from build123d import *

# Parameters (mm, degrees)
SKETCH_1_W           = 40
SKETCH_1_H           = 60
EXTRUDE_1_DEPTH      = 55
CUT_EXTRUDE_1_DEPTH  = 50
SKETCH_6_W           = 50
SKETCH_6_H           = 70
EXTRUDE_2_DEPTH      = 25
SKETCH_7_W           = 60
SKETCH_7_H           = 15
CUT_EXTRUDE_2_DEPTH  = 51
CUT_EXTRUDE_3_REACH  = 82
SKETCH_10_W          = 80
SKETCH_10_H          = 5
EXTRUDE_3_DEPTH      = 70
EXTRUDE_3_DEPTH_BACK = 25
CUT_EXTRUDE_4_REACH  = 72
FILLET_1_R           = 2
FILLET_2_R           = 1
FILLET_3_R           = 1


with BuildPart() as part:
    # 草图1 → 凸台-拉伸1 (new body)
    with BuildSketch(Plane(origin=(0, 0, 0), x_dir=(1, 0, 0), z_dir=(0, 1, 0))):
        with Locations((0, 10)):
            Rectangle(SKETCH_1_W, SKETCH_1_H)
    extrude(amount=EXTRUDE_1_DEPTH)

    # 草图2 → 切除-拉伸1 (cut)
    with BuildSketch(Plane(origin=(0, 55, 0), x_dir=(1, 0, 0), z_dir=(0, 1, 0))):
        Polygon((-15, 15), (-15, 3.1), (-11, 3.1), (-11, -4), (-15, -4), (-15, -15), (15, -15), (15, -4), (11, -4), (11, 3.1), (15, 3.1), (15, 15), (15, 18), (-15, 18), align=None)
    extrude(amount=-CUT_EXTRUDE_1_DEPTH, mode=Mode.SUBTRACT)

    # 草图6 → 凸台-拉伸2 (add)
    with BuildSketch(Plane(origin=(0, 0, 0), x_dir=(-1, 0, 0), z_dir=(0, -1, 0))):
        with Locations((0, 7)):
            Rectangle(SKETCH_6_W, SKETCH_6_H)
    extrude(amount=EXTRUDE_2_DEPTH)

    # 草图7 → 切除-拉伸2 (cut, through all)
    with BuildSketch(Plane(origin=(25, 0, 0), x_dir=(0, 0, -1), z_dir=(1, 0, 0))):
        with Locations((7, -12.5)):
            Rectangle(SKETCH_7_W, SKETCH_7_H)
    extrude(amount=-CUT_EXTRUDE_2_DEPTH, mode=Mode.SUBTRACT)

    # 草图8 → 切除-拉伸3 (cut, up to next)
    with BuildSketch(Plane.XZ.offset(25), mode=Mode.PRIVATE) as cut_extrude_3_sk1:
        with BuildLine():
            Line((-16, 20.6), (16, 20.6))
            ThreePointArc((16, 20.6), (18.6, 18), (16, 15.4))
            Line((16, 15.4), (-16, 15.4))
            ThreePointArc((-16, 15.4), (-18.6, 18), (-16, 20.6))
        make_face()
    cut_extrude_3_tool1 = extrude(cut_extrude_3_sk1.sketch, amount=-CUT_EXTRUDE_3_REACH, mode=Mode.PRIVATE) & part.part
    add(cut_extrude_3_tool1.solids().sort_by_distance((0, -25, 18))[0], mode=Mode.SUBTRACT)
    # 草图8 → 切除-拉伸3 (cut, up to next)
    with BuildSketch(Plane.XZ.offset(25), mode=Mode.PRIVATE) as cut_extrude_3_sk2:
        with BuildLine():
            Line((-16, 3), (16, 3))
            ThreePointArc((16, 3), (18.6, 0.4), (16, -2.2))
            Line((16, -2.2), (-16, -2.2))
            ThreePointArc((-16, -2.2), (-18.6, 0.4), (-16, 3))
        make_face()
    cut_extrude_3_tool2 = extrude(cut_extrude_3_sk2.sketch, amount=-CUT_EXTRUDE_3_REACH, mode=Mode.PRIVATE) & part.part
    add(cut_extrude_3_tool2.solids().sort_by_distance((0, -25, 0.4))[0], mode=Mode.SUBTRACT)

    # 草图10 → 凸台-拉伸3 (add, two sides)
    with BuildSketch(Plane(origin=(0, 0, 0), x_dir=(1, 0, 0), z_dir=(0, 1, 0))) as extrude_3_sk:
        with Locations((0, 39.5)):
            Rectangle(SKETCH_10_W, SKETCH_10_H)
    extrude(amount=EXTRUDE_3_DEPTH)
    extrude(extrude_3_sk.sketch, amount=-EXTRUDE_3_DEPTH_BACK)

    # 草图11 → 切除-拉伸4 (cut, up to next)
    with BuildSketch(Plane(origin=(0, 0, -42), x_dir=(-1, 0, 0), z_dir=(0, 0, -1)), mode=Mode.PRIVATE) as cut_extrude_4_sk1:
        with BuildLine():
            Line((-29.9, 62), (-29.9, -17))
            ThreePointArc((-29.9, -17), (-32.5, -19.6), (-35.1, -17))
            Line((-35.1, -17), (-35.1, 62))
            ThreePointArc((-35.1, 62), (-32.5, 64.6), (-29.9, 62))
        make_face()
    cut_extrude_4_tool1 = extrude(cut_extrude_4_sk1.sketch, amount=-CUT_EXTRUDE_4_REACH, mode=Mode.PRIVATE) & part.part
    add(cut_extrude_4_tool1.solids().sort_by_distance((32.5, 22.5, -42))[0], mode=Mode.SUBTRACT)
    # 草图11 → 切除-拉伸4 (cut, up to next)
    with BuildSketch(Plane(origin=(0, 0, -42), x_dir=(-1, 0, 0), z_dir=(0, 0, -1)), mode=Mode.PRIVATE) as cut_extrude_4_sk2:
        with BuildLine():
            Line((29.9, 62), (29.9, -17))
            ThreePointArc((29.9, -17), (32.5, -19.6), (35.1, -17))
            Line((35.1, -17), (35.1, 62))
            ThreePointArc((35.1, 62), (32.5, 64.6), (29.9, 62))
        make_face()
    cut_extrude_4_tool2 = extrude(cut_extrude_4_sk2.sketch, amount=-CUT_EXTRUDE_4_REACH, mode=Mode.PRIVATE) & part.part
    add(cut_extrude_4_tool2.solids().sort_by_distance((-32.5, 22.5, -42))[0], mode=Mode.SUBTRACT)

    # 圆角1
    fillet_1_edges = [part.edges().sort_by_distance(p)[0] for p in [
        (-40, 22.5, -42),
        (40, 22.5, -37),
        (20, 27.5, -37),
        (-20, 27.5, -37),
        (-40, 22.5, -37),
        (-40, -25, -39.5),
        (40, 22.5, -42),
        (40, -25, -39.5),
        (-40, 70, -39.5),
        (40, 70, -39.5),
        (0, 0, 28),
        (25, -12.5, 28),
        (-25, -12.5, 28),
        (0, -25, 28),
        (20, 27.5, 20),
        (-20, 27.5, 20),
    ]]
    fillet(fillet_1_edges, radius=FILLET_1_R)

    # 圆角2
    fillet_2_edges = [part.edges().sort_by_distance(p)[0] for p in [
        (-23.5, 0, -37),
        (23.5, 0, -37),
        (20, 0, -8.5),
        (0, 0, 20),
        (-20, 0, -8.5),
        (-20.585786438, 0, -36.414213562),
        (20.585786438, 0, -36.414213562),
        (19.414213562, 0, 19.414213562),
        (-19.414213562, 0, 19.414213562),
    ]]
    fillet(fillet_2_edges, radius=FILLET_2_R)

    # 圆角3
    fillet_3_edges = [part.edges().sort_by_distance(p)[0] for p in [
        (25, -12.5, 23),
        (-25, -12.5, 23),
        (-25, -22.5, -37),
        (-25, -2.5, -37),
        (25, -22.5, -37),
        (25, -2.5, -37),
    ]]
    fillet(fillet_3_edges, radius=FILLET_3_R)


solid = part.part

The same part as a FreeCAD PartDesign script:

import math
import FreeCAD as App
import Part
import Sketcher


def edges_at(feature, points):
    """Names of the edges that pass closest to the given points."""
    edges = feature.Shape.Edges
    near = lambda p: min(range(len(edges)), key=lambda i: edges[i].distToShape(Part.Vertex(*p))[0])
    return sorted({f"Edge{near(p) + 1}" for p in points})


def add_polygon(sketch, points):
    """Adds a closed chain of lines whose ends are joined by coincident constraints."""
    first, n = sketch.GeometryCount, len(points)
    for a, b in zip(points, points[1:] + points[:1]):
        sketch.addGeometry(Part.LineSegment(App.Vector(*a, 0), App.Vector(*b, 0)), False)
    for i in range(n):
        sketch.addConstraint(Sketcher.Constraint("Coincident", first + i, 2, first + (i + 1) % n, 1))

doc = App.newDocument("Part")
body = doc.addObject("PartDesign::Body", "Body")

# Sketch on XZ plane
sketch1 = body.newObject("Sketcher::SketchObject", "Sketch")
sketch1.AttachmentSupport = (doc.getObject("XZ_Plane"), [""])
sketch1.MapMode = "FlatFace"
add_polygon(sketch1, [(-20, -40), (-20, 20), (20, 20), (20, -40)])  # lines 0-3
sketch1.addConstraint([
    Sketcher.Constraint("Vertical", 0),
    Sketcher.Constraint("Horizontal", 1),
    Sketcher.Constraint("Vertical", 2),
    Sketcher.Constraint("Horizontal", 3),
    Sketcher.Constraint("DistanceX", 1, 1, 1, 2, 40.0),
    Sketcher.Constraint("DistanceY", 0, 1, 0, 2, 60.0),
    Sketcher.Constraint("DistanceX", 0, 2, -1, 1, 20.0),
    Sketcher.Constraint("DistanceY", -1, 1, 0, 2, 20.0),
])
pad1 = body.newObject("PartDesign::Pad", "Pad")
pad1.Profile = sketch1
pad1.Length = 55
pad1.Reversed = True

# Sketch on XZ plane
sketch2 = body.newObject("Sketcher::SketchObject", "Sketch001")
sketch2.AttachmentSupport = (doc.getObject("XZ_Plane"), [""])
sketch2.MapMode = "FlatFace"
sketch2.AttachmentOffset = App.Placement(App.Vector(0, 0, -55), App.Rotation())
add_polygon(sketch2, [(-15, -3.1), (-11, -3.1), (-11, 4), (-15, 4), (-15, 15), (15, 15), (15, 4), (11, 4), (11, -3.1), (15, -3.1), (15, -18), (-15, -18)])  # lines 0-11
sketch2.addConstraint([
    Sketcher.Constraint("Horizontal", 0),
    Sketcher.Constraint("Vertical", 1),
    Sketcher.Constraint("Horizontal", 2),
    Sketcher.Constraint("Vertical", 3),
    Sketcher.Constraint("Horizontal", 4),
    Sketcher.Constraint("Vertical", 5),
    Sketcher.Constraint("Horizontal", 6),
    Sketcher.Constraint("Vertical", 7),
    Sketcher.Constraint("Horizontal", 8),
    Sketcher.Constraint("Vertical", 9),
    Sketcher.Constraint("Horizontal", 10),
    Sketcher.Constraint("Vertical", 11),
    Sketcher.Constraint("Symmetric", 2, 2, 5, 2, -2),
    Sketcher.Constraint("Symmetric", 0, 2, 7, 2, -2),
    Sketcher.Constraint("Vertical", 5, 2, 8, 2),
    Sketcher.Constraint("Vertical", 3, 2, 10, 2),
    Sketcher.Constraint("DistanceX", 0, 1, 0, 2, 4.0),
    Sketcher.Constraint("DistanceX", 4, 1, 4, 2, 30.0),
    Sketcher.Constraint("DistanceY", 3, 1, 3, 2, 11.0),
    Sketcher.Constraint("DistanceY", 1, 1, 1, 2, 7.1),
    Sketcher.Constraint("DistanceY", 9, 2, 9, 1, 14.9),
    Sketcher.Constraint("DistanceY", -1, 1, 1, 2, 4.0),
])
pocket1 = body.newObject("PartDesign::Pocket", "Pocket")
pocket1.Profile = sketch2
pocket1.Length = 50
pocket1.Reversed = True

# Sketch on XZ plane
sketch3 = body.newObject("Sketcher::SketchObject", "Sketch002")
sketch3.AttachmentSupport = (doc.getObject("XZ_Plane"), [""])
sketch3.MapMode = "FlatFace"
add_polygon(sketch3, [(25, -42), (25, 28), (-25, 28), (-25, -42)])  # lines 0-3
sketch3.addConstraint([
    Sketcher.Constraint("Vertical", 0),
    Sketcher.Constraint("Horizontal", 1),
    Sketcher.Constraint("Vertical", 2),
    Sketcher.Constraint("Horizontal", 3),
    Sketcher.Constraint("DistanceX", 1, 2, 1, 1, 50.0),
    Sketcher.Constraint("DistanceY", 0, 1, 0, 2, 70.0),
    Sketcher.Constraint("DistanceX", -1, 1, 0, 2, 25.0),
    Sketcher.Constraint("DistanceY", -1, 1, 0, 2, 28.0),
])
pad2 = body.newObject("PartDesign::Pad", "Pad001")
pad2.Profile = sketch3
pad2.Length = 25

# Sketch on YZ plane
sketch4 = body.newObject("Sketcher::SketchObject", "Sketch003")
sketch4.AttachmentSupport = (doc.getObject("YZ_Plane"), [""])
sketch4.MapMode = "FlatFace"
sketch4.AttachmentOffset = App.Placement(App.Vector(0, 0, 25), App.Rotation())
add_polygon(sketch4, [(-5, 23), (-20, 23), (-20, -37), (-5, -37)])  # lines 0-3
sketch4.addConstraint([
    Sketcher.Constraint("Horizontal", 0),
    Sketcher.Constraint("Vertical", 1),
    Sketcher.Constraint("Horizontal", 2),
    Sketcher.Constraint("Vertical", 3),
    Sketcher.Constraint("DistanceX", 0, 2, 0, 1, 15.0),
    Sketcher.Constraint("DistanceY", 1, 2, 1, 1, 60.0),
    Sketcher.Constraint("DistanceX", 0, 2, -1, 1, 20.0),
    Sketcher.Constraint("DistanceY", -1, 1, 0, 2, 23.0),
])
pocket2 = body.newObject("PartDesign::Pocket", "Pocket001")
pocket2.Profile = sketch4
pocket2.Type = "ThroughAll"

# Sketch on XZ plane
sketch5 = body.newObject("Sketcher::SketchObject", "Sketch004")
sketch5.AttachmentSupport = (doc.getObject("XZ_Plane"), [""])
sketch5.MapMode = "FlatFace"
sketch5.AttachmentOffset = App.Placement(App.Vector(0, 0, 25), App.Rotation())
sketch5.addGeometry([
    Part.LineSegment(App.Vector(16, 20.6, 0), App.Vector(-16, 20.6, 0)),
    Part.ArcOfCircle(Part.Circle(App.Vector(-16, 18, 0), App.Vector(0, 0, 1), 2.6), math.radians(90), math.radians(270)),
    Part.LineSegment(App.Vector(-16, 15.4, 0), App.Vector(16, 15.4, 0)),
    Part.ArcOfCircle(Part.Circle(App.Vector(16, 18, 0), App.Vector(0, 0, 1), 2.6), math.radians(-90), math.radians(90)),
], False)
sketch5.addConstraint([
    Sketcher.Constraint("Tangent", 0, 2, 1, 1),
    Sketcher.Constraint("Tangent", 1, 2, 2, 1),
    Sketcher.Constraint("Tangent", 2, 2, 3, 1),
    Sketcher.Constraint("Tangent", 3, 2, 0, 1),
    Sketcher.Constraint("Horizontal", 0),
    Sketcher.Constraint("Horizontal", 2),
    Sketcher.Constraint("Radius", 1, 2.6),
    Sketcher.Constraint("DistanceX", 0, 2, 0, 1, 32.0),
    Sketcher.Constraint("DistanceX", 1, 3, -1, 1, 16.0),
    Sketcher.Constraint("DistanceY", -1, 1, 1, 3, 18.0),
])
pocket3 = body.newObject("PartDesign::Pocket", "Pocket002")
pocket3.Profile = sketch5
pocket3.Type = "UpToFirst"

# Sketch on XZ plane
sketch6 = body.newObject("Sketcher::SketchObject", "Sketch005")
sketch6.AttachmentSupport = (doc.getObject("XZ_Plane"), [""])
sketch6.MapMode = "FlatFace"
sketch6.AttachmentOffset = App.Placement(App.Vector(0, 0, 25), App.Rotation())
sketch6.addGeometry([
    Part.LineSegment(App.Vector(16, 3, 0), App.Vector(-16, 3, 0)),
    Part.ArcOfCircle(Part.Circle(App.Vector(-16, 0.4, 0), App.Vector(0, 0, 1), 2.6), math.radians(90), math.radians(270)),
    Part.LineSegment(App.Vector(-16, -2.2, 0), App.Vector(16, -2.2, 0)),
    Part.ArcOfCircle(Part.Circle(App.Vector(16, 0.4, 0), App.Vector(0, 0, 1), 2.6), math.radians(-90), math.radians(90)),
], False)
sketch6.addConstraint([
    Sketcher.Constraint("Tangent", 0, 2, 1, 1),
    Sketcher.Constraint("Tangent", 1, 2, 2, 1),
    Sketcher.Constraint("Tangent", 2, 2, 3, 1),
    Sketcher.Constraint("Tangent", 3, 2, 0, 1),
    Sketcher.Constraint("Horizontal", 0),
    Sketcher.Constraint("Horizontal", 2),
    Sketcher.Constraint("Radius", 1, 2.6),
    Sketcher.Constraint("DistanceX", 0, 2, 0, 1, 32.0),
    Sketcher.Constraint("DistanceX", 1, 3, -1, 1, 16.0),
    Sketcher.Constraint("DistanceY", -1, 1, 0, 2, 3.0),
])
pocket4 = body.newObject("PartDesign::Pocket", "Pocket003")
pocket4.Profile = sketch6
pocket4.Type = "UpToFirst"

# Sketch on XZ plane
sketch7 = body.newObject("Sketcher::SketchObject", "Sketch006")
sketch7.AttachmentSupport = (doc.getObject("XZ_Plane"), [""])
sketch7.MapMode = "FlatFace"
add_polygon(sketch7, [(-40, -42), (-40, -37), (40, -37), (40, -42)])  # lines 0-3
sketch7.addConstraint([
    Sketcher.Constraint("Vertical", 0),
    Sketcher.Constraint("Horizontal", 1),
    Sketcher.Constraint("Vertical", 2),
    Sketcher.Constraint("Horizontal", 3),
    Sketcher.Constraint("DistanceX", 1, 1, 1, 2, 80.0),
    Sketcher.Constraint("DistanceY", 0, 1, 0, 2, 5.0),
    Sketcher.Constraint("DistanceX", 0, 2, -1, 1, 40.0),
    Sketcher.Constraint("DistanceY", 0, 2, -1, 1, 37.0),
])
pad3 = body.newObject("PartDesign::Pad", "Pad002")
pad3.Profile = sketch7
pad3.Type = "TwoLengths"
pad3.Length = 70
pad3.Length2 = 25
pad3.Reversed = True

# Sketch on XY plane
sketch8 = body.newObject("Sketcher::SketchObject", "Sketch007")
sketch8.AttachmentSupport = (doc.getObject("XY_Plane"), [""])
sketch8.MapMode = "FlatFace"
sketch8.AttachmentOffset = App.Placement(App.Vector(0, 0, -42), App.Rotation())
sketch8.addGeometry([
    Part.LineSegment(App.Vector(29.9, -17, 0), App.Vector(29.9, 62, 0)),
    Part.ArcOfCircle(Part.Circle(App.Vector(32.5, 62, 0), App.Vector(0, 0, 1), 2.6), math.radians(0), math.radians(180)),
    Part.LineSegment(App.Vector(35.1, 62, 0), App.Vector(35.1, -17, 0)),
    Part.ArcOfCircle(Part.Circle(App.Vector(32.5, -17, 0), App.Vector(0, 0, 1), 2.6), math.radians(180), math.radians(360)),
], False)
sketch8.addConstraint([
    Sketcher.Constraint("Tangent", 0, 2, 1, 2),
    Sketcher.Constraint("Tangent", 1, 1, 2, 1),
    Sketcher.Constraint("Tangent", 2, 2, 3, 2),
    Sketcher.Constraint("Tangent", 3, 1, 0, 1),
    Sketcher.Constraint("Vertical", 0),
    Sketcher.Constraint("Vertical", 2),
    Sketcher.Constraint("Radius", 1, 2.6),
    Sketcher.Constraint("DistanceY", 0, 1, 0, 2, 79.0),
    Sketcher.Constraint("DistanceY", -1, 1, 1, 3, 62.0),
    Sketcher.Constraint("DistanceX", -1, 1, 1, 3, 32.5),
])
pocket5 = body.newObject("PartDesign::Pocket", "Pocket004")
pocket5.Profile = sketch8
pocket5.Type = "UpToFirst"
pocket5.Reversed = True

# Sketch on XY plane
sketch9 = body.newObject("Sketcher::SketchObject", "Sketch008")
sketch9.AttachmentSupport = (doc.getObject("XY_Plane"), [""])
sketch9.MapMode = "FlatFace"
sketch9.AttachmentOffset = App.Placement(App.Vector(0, 0, -42), App.Rotation())
sketch9.addGeometry([
    Part.LineSegment(App.Vector(-29.9, 62, 0), App.Vector(-29.9, -17, 0)),
    Part.ArcOfCircle(Part.Circle(App.Vector(-32.5, -17, 0), App.Vector(0, 0, 1), 2.6), math.radians(180), math.radians(360)),
    Part.LineSegment(App.Vector(-35.1, -17, 0), App.Vector(-35.1, 62, 0)),
    Part.ArcOfCircle(Part.Circle(App.Vector(-32.5, 62, 0), App.Vector(0, 0, 1), 2.6), math.radians(0), math.radians(180)),
], False)
sketch9.addConstraint([
    Sketcher.Constraint("Tangent", 0, 2, 1, 2),
    Sketcher.Constraint("Tangent", 1, 1, 2, 1),
    Sketcher.Constraint("Tangent", 2, 2, 3, 2),
    Sketcher.Constraint("Tangent", 3, 1, 0, 1),
    Sketcher.Constraint("Vertical", 0),
    Sketcher.Constraint("Vertical", 2),
    Sketcher.Constraint("Radius", 1, 2.6),
    Sketcher.Constraint("DistanceY", 0, 2, 0, 1, 79.0),
    Sketcher.Constraint("DistanceY", 1, 3, -1, 1, 17.0),
    Sketcher.Constraint("DistanceX", 1, 3, -1, 1, 32.5),
])
pocket6 = body.newObject("PartDesign::Pocket", "Pocket005")
pocket6.Profile = sketch9
pocket6.Type = "UpToFirst"
pocket6.Reversed = True
doc.recompute()

fillet = body.newObject("PartDesign::Fillet", "Fillet")
fillet.Base = (pocket6, edges_at(pocket6, [
    (-40, 22.5, -42),
    (40, 22.5, -37),
    (20, 27.5, -37),
    (-20, 27.5, -37),
    (-40, 22.5, -37),
    (-40, -25, -39.5),
    (40, 22.5, -42),
    (40, -25, -39.5),
    (-40, 70, -39.5),
    (40, 70, -39.5),
    (0, 0, 28),
    (25, -12.5, 28),
    (-25, -12.5, 28),
    (0, -25, 28),
    (20, 27.5, 20),
    (-20, 27.5, 20),
]))
fillet.Radius = 2
doc.recompute()

fillet2 = body.newObject("PartDesign::Fillet", "Fillet001")
fillet2.Base = (fillet, edges_at(fillet, [
    (-23.5, 0, -37),
    (23.5, 0, -37),
    (20, 0, -8.5),
    (0, 0, 20),
    (-20, 0, -8.5),
    (-20.586, 0, -36.414),
    (20.586, 0, -36.414),
    (19.414, 0, 19.414),
    (-19.414, 0, 19.414),
]))
fillet2.Radius = 1
doc.recompute()

fillet3 = body.newObject("PartDesign::Fillet", "Fillet002")
fillet3.Base = (fillet2, edges_at(fillet2, [
    (25, -12.5, 23),
    (-25, -12.5, 23),
    (-25, -22.5, -37),
    (-25, -2, -37),
    (25, -22.5, -37),
    (25, -2, -37),
]))
fillet3.Radius = 1

doc.recompute()
